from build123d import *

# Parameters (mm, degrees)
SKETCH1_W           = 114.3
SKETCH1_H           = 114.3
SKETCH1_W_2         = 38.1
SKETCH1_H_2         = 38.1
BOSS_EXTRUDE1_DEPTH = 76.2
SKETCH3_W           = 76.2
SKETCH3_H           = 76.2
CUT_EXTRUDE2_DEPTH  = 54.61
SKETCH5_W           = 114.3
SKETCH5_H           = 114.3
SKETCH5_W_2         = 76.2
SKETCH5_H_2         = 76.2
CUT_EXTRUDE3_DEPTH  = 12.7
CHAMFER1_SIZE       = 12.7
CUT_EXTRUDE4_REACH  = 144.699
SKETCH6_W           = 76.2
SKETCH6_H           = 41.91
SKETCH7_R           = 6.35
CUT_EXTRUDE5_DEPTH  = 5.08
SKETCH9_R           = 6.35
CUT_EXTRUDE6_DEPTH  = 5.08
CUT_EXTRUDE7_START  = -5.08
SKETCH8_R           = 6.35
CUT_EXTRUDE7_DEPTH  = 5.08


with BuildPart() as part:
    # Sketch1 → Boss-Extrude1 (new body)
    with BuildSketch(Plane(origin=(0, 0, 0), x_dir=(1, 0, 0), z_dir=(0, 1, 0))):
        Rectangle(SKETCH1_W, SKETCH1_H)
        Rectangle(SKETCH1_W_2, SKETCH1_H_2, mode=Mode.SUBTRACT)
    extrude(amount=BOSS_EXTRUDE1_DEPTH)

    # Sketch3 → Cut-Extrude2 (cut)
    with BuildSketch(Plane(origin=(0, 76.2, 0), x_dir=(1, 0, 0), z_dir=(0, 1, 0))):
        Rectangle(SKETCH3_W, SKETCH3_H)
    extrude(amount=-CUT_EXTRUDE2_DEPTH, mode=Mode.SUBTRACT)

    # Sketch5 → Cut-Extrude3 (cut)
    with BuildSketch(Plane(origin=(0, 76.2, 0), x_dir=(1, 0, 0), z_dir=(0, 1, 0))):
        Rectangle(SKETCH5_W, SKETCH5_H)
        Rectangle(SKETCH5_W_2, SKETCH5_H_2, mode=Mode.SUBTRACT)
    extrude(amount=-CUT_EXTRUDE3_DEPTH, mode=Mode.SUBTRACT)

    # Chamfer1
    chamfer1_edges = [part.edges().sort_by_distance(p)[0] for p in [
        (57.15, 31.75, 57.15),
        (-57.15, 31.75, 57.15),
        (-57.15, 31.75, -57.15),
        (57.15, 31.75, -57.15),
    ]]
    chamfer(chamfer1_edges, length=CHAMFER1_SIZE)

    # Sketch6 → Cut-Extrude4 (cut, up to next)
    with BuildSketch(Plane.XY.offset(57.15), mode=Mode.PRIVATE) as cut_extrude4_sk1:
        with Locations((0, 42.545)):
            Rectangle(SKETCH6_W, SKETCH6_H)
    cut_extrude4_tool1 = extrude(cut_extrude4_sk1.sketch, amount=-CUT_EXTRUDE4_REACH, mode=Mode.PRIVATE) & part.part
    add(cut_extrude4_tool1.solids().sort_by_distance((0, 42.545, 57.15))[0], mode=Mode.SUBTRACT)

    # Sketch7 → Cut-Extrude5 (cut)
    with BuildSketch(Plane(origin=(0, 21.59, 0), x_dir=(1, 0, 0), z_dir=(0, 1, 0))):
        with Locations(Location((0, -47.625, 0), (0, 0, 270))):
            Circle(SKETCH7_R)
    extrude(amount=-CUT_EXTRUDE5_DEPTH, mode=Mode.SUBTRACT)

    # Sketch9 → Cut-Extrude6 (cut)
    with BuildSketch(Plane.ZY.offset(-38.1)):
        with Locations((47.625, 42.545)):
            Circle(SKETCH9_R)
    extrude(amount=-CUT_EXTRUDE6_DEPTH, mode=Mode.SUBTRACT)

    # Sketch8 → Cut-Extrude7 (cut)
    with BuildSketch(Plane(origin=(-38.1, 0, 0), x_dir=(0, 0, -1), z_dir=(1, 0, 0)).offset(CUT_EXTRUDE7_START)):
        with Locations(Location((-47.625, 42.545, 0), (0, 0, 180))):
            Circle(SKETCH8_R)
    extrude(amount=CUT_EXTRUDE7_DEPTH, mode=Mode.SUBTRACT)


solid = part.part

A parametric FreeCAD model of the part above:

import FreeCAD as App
import Part
import Sketcher

V = App.Vector
Q = App.Units.Quantity


def edges_at(feature, points):
    """Names of the edges that pass closest to the given points."""
    edges = feature.Shape.Edges
    near = lambda p: min(range(len(edges)), key=lambda i: edges[i].distToShape(Part.Vertex(*p))[0])
    return sorted({f"Edge{near(p) + 1}" for p in points})


def add_polygon(sketch, points):
    """Adds a closed chain of lines whose ends are joined by coincident constraints."""
    first, n = sketch.GeometryCount, len(points)
    for a, b in zip(points, points[1:] + points[:1]):
        sketch.addGeometry(Part.LineSegment(App.Vector(*a, 0), App.Vector(*b, 0)), False)
    for i in range(n):
        sketch.addConstraint(Sketcher.Constraint("Coincident", first + i, 2, first + (i + 1) % n, 1))

doc = App.newDocument("Part")
body = doc.addObject("PartDesign::Body", "Body")

# Sketch on XZ plane
sketch1 = doc.addObject("Sketcher::SketchObject", "Sketch")
body.addObject(sketch1)
sketch1.AttachmentSupport = (doc.XZ_Plane, [""])
sketch1.MapMode = "FlatFace"
add_polygon(sketch1, [(-57, -57), (-57, 57), (57, 57), (57, -57)])  # lines 0-3
add_polygon(sketch1, [(19, 19), (-19, 19), (-19, -19), (19, -19)])  # lines 4-7
sketch1.addConstraint([
    Sketcher.Constraint("Vertical", 0),
    Sketcher.Constraint("Horizontal", 1),
    Sketcher.Constraint("Vertical", 2),
    Sketcher.Constraint("Horizontal", 3),
    Sketcher.Constraint("Horizontal", 4),
    Sketcher.Constraint("Vertical", 5),
    Sketcher.Constraint("Horizontal", 6),
    Sketcher.Constraint("Vertical", 7),
    Sketcher.Constraint("Symmetric", 0, 2, 2, 2, -1, 1),
    Sketcher.Constraint("Symmetric", 4, 2, 6, 2, -1, 1),
    Sketcher.Constraint("Equal", 3, 0),
    Sketcher.Constraint("Equal", 6, 5),
    Sketcher.Constraint("DistanceX", 1, 1, 1, 2, Q("4.5 in")),
    Sketcher.Constraint("DistanceX", 4, 2, 4, 1, Q("1.5 in")),
])
pad1 = doc.addObject("PartDesign::Pad", "Pad")
body.addObject(pad1)
pad1.Profile = sketch1
pad1.Length = Q("3 in")
pad1.Reversed = True

# Sketch on XZ plane
sketch2 = doc.addObject("Sketcher::SketchObject", "Sketch001")
body.addObject(sketch2)
sketch2.AttachmentSupport = (doc.XZ_Plane, [""])
sketch2.MapMode = "FlatFace"
sketch2.AttachmentOffset = App.Placement(V(0, 0, -3 * 25.4), App.Rotation())
add_polygon(sketch2, [(-38, -38), (-38, 38), (38, 38), (38, -38)])  # lines 0-3
sketch2.addConstraint([
    Sketcher.Constraint("Vertical", 0),
    Sketcher.Constraint("Horizontal", 1),
    Sketcher.Constraint("Vertical", 2),
    Sketcher.Constraint("Horizontal", 3),
    Sketcher.Constraint("Symmetric", 0, 2, 2, 2, -1, 1),
    Sketcher.Constraint("Equal", 3, 0),
    Sketcher.Constraint("DistanceX", 1, 1, 1, 2, Q("3 in")),
])
pocket1 = doc.addObject("PartDesign::Pocket", "Pocket")
body.addObject(pocket1)
pocket1.Profile = sketch2
pocket1.Length = Q("2.15 in")
pocket1.Reversed = True

# Sketch on XZ plane
sketch3 = doc.addObject("Sketcher::SketchObject", "Sketch002")
body.addObject(sketch3)
sketch3.AttachmentSupport = (doc.XZ_Plane, [""])
sketch3.MapMode = "FlatFace"
sketch3.AttachmentOffset = App.Placement(V(0, 0, -3 * 25.4), App.Rotation())
add_polygon(sketch3, [(-57, -57), (-57, 57), (57, 57), (57, -57)])  # lines 0-3
add_polygon(sketch3, [(38, 38), (-38, 38), (-38, -38), (38, -38)])  # lines 4-7
sketch3.addConstraint([
    Sketcher.Constraint("Vertical", 0),
    Sketcher.Constraint("Horizontal", 1),
    Sketcher.Constraint("Vertical", 2),
    Sketcher.Constraint("Horizontal", 3),
    Sketcher.Constraint("Horizontal", 4),
    Sketcher.Constraint("Vertical", 5),
    Sketcher.Constraint("Horizontal", 6),
    Sketcher.Constraint("Vertical", 7),
    Sketcher.Constraint("Symmetric", 0, 2, 2, 2, -1, 1),
    Sketcher.Constraint("Symmetric", 4, 2, 6, 2, -1, 1),
    Sketcher.Constraint("Equal", 3, 0),
    Sketcher.Constraint("Equal", 6, 5),
    Sketcher.Constraint("DistanceX", 4, 2, 4, 1, Q("3 in")),
    Sketcher.Constraint("DistanceX", 1, 1, 1, 2, Q("4.5 in")),
])
pocket2 = doc.addObject("PartDesign::Pocket", "Pocket001")
body.addObject(pocket2)
pocket2.Profile = sketch3
pocket2.Length = Q("0.5 in")
pocket2.Reversed = True
doc.recompute()

chamfer = doc.addObject("PartDesign::Chamfer", "Chamfer")
body.addObject(chamfer)
chamfer.Base = (pocket2, edges_at(pocket2, [
    (57.15, 31.75, 57.15),
    (-57.15, 31.75, 57.15),
    (-57.15, 31.75, -57.15),
    (57.15, 31.75, -57.15),
]))
chamfer.Size = Q("0.5 in")

# Sketch on XY plane
sketch4 = doc.addObject("Sketcher::SketchObject", "Sketch003")
body.addObject(sketch4)
sketch4.AttachmentSupport = (doc.XY_Plane, [""])
sketch4.MapMode = "FlatFace"
sketch4.AttachmentOffset = App.Placement(V(0, 0, 2.25 * 25.4), App.Rotation())
add_polygon(sketch4, [(-38, 64), (-38, 22), (38, 22), (38, 64)])  # lines 0-3
sketch4.addConstraint([
    Sketcher.Constraint("Vertical", 0),
    Sketcher.Constraint("Horizontal", 1),
    Sketcher.Constraint("Vertical", 2),
    Sketcher.Constraint("Horizontal", 3),
    Sketcher.Constraint("DistanceX", 1, 1, 1, 2, Q("3 in")),
    Sketcher.Constraint("DistanceY", 0, 2, 0, 1, Q("1.65 in")),
    Sketcher.Constraint("DistanceX", 0, 2, -1, 1, Q("1.5 in")),
    Sketcher.Constraint("DistanceY", -1, 1, 2, 2, Q("2.5 in")),
])
pocket3 = doc.addObject("PartDesign::Pocket", "Pocket002")
body.addObject(pocket3)
pocket3.Profile = sketch4
pocket3.Type = "UpToFirst"

# Sketch on XZ plane
sketch5 = doc.addObject("Sketcher::SketchObject", "Sketch004")
body.addObject(sketch5)
sketch5.AttachmentSupport = (doc.XZ_Plane, [""])
sketch5.MapMode = "FlatFace"
sketch5.AttachmentOffset = App.Placement(V(0, 0, -0.85 * 25.4), App.Rotation())
sketch5.addGeometry(Part.Circle(V(0, 48, 0), V(0, 0, 1), 6), False)
sketch5.addConstraint([
    Sketcher.Constraint("PointOnObject", 0, 3, -2),
    Sketcher.Constraint("Diameter", 0, Q("0.5 in")),
    Sketcher.Constraint("DistanceY", -1, 1, 0, 3, Q("1.875 in")),
])
pocket4 = doc.addObject("PartDesign::Pocket", "Pocket003")
body.addObject(pocket4)
pocket4.Profile = sketch5
pocket4.Length = Q("0.2 in")
pocket4.Reversed = True

# Sketch on YZ plane
sketch6 = doc.addObject("Sketcher::SketchObject", "Sketch005")
body.addObject(sketch6)
sketch6.AttachmentSupport = (doc.YZ_Plane, [""])
sketch6.MapMode = "FlatFace"
sketch6.AttachmentOffset = App.Placement(V(0, 0, 1.5 * 25.4), App.Rotation())
sketch6.addGeometry(Part.Circle(V(43, 48, 0), V(0, 0, 1), 6), False)
sketch6.addConstraint([
    Sketcher.Constraint("Diameter", 0, Q("0.5 in")),
    Sketcher.Constraint("DistanceX", -1, 1, 0, 3, Q("1.675 in")),
    Sketcher.Constraint("DistanceY", -1, 1, 0, 3, Q("1.875 in")),
])
pocket5 = doc.addObject("PartDesign::Pocket", "Pocket004")
body.addObject(pocket5)
pocket5.Profile = sketch6
pocket5.Length = Q("0.2 in")
pocket5.Reversed = True

# Sketch on YZ plane
sketch7 = doc.addObject("Sketcher::SketchObject", "Sketch006")
body.addObject(sketch7)
sketch7.AttachmentSupport = (doc.YZ_Plane, [""])
sketch7.MapMode = "FlatFace"
sketch7.AttachmentOffset = App.Placement(V(0, 0, -1.7 * 25.4), App.Rotation())
sketch7.addGeometry(Part.Circle(V(43, 48, 0), V(0, 0, 1), 6), False)
sketch7.addConstraint([
    Sketcher.Constraint("Diameter", 0, Q("0.5 in")),
    Sketcher.Constraint("DistanceX", -1, 1, 0, 3, Q("1.675 in")),
    Sketcher.Constraint("DistanceY", -1, 1, 0, 3, Q("1.875 in")),
])
pocket6 = doc.addObject("PartDesign::Pocket", "Pocket005")
body.addObject(pocket6)
pocket6.Profile = sketch7
pocket6.Length = Q("0.2 in")
pocket6.Reversed = True

doc.recompute()
